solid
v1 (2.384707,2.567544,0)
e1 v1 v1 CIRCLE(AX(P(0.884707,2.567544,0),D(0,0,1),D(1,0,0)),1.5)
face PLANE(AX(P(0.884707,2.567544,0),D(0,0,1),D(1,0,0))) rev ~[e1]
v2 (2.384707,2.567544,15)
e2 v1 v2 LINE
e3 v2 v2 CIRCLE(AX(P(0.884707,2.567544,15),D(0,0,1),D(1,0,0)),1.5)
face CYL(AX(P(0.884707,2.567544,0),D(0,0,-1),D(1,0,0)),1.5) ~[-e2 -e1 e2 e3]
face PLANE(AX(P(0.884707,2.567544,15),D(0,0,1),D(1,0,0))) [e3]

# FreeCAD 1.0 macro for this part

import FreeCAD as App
import Part
import Sketcher
Q = App.Units.Quantity

doc = App.newDocument("Part")
params = doc.addObject("Spreadsheet::Sheet", "Params")
for row, (alias, value) in enumerate([
    ("sketch1_diameter", "3 mm"),
    ("pad1_length", "15 mm"),
], start=1):
    params.set(f"A{row}", alias)
    params.set(f"B{row}", "=" + value)
    params.setAlias(f"B{row}", alias)

body = doc.addObject("PartDesign::Body", "Body")

# Sketch on XY plane
sketch1 = doc.addObject("Sketcher::SketchObject", "Sketch")
body.addObject(sketch1)
sketch1.AttachmentSupport = (doc.XY_Plane, [""])
sketch1.MapMode = "FlatFace"
sketch1.addGeometry(Part.Circle(App.Vector(0.9, 2.6, 0), App.Vector(0, 0, 1), 1.5), False)
sketch1.addConstraint([
    Sketcher.Constraint("Diameter", 0, Q("3 mm")),
    Sketcher.Constraint("DistanceX", -1, 1, 0, 3, Q("0.884707 mm")),
    Sketcher.Constraint("DistanceY", -1, 1, 0, 3, Q("2.567544 mm")),
])
sketch1.setExpression("Constraints[0]", "Params.sketch1_diameter")
pad1 = doc.addObject("PartDesign::Pad", "Pad")
body.addObject(pad1)
pad1.Profile = sketch1
pad1.setExpression("Length", "Params.pad1_length")

doc.recompute()
